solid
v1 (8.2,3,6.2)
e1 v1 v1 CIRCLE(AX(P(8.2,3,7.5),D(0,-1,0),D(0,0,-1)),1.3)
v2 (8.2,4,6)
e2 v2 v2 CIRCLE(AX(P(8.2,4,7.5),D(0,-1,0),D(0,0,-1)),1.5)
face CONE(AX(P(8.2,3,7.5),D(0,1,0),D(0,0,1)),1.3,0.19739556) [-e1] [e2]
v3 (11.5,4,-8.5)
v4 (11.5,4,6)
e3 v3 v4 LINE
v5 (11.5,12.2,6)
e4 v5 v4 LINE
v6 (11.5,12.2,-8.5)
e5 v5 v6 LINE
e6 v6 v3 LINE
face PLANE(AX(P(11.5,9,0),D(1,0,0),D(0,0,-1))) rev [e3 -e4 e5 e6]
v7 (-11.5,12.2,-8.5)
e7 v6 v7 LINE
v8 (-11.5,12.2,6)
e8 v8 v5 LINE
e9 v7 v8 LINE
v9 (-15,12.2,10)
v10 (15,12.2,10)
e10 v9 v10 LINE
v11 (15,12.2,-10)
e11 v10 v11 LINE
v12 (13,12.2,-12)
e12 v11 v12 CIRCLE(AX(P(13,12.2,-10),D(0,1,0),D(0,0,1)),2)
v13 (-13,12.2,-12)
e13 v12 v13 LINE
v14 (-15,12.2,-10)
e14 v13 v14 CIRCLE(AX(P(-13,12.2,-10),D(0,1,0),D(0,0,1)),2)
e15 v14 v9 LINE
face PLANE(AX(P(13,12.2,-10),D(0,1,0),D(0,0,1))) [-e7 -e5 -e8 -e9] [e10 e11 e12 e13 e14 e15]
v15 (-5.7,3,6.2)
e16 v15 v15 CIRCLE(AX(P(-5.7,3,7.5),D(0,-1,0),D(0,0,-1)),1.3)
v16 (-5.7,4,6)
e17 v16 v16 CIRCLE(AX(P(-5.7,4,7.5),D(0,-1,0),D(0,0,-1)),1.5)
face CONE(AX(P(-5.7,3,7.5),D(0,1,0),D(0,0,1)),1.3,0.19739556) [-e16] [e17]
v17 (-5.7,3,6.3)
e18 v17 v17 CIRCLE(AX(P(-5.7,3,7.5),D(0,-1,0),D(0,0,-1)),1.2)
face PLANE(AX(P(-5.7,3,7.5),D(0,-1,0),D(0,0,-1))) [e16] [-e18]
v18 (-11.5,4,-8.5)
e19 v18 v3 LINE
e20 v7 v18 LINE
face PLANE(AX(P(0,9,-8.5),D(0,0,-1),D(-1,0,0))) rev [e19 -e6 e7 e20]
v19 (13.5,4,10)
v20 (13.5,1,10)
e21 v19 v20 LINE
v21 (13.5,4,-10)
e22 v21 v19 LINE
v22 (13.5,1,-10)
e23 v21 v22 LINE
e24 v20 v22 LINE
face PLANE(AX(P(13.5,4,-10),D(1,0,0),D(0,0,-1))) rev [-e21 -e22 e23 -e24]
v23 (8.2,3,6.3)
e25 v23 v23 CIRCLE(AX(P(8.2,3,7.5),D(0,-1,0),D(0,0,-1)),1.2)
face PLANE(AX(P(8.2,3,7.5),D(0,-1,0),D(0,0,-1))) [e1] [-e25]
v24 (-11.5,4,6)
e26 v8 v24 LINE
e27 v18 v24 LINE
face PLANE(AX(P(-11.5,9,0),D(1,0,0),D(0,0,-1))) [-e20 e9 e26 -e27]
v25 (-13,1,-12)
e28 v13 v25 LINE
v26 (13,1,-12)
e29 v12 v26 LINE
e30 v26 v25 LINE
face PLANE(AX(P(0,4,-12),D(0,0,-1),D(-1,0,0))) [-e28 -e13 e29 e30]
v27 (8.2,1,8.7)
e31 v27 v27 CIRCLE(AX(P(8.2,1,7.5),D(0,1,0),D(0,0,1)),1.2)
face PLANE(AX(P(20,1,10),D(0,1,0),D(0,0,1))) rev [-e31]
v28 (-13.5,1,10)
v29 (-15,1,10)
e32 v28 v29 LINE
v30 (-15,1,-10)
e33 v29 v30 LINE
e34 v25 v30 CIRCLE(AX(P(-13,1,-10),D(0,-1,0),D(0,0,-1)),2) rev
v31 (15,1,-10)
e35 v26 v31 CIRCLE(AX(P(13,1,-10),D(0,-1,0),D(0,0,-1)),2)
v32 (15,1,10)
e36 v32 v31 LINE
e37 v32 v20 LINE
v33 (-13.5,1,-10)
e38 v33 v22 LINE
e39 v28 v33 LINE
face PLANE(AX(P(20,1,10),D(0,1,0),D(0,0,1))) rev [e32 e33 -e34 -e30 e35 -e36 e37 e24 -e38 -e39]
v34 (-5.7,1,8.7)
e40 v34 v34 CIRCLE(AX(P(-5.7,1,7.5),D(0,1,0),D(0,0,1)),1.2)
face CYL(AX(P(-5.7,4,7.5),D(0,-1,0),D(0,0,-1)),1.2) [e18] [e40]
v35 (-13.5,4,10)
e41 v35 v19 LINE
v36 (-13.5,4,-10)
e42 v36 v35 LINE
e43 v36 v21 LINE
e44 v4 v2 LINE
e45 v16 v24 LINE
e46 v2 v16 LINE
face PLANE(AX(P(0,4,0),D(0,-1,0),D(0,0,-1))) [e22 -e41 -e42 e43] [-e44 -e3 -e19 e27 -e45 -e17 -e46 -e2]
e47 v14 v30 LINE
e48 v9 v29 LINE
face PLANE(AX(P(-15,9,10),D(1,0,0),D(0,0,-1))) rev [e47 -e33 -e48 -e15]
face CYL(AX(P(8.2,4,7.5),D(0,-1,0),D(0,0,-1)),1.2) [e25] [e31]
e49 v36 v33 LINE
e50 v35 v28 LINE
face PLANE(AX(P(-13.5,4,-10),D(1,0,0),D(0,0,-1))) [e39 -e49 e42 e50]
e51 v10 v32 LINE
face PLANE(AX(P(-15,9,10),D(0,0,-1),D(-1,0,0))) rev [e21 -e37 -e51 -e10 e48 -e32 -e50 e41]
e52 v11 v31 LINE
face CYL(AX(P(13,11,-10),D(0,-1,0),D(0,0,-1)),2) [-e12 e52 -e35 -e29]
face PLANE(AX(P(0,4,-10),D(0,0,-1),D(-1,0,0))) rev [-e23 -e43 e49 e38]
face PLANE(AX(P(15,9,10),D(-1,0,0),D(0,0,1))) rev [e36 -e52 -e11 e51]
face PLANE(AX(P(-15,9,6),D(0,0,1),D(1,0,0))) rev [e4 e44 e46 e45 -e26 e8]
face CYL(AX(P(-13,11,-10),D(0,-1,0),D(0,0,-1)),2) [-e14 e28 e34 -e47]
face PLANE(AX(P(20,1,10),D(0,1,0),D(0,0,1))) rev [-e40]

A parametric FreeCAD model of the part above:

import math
import FreeCAD as App
import Part
import Sketcher

V = App.Vector

doc = App.newDocument("Part")
params = doc.addObject("Spreadsheet::Sheet", "Params")
for row, (alias, value) in enumerate([
    ("sketch1_diameter", "2.4 mm"),
    ("pad1_length", "4 mm"),
    ("sketch2_width", "26 mm"),
    ("sketch2_width2", "2 mm"),
    ("sketch2_height", "20 mm"),
    ("sketch2_height2", "22 mm"),
    ("pad2_length", "4 mm"),
    ("sketch3_width", "30 mm"),
    ("sketch3_height", "4 mm"),
    ("pad3_length", "5 mm"),
    ("sketch4_width", "23 mm"),
    ("sketch4_width2", "30 mm"),
    ("sketch4_height", "18 mm"),
    ("sketch4_height2", "14.5 mm"),
    ("pad4_length", "5 mm"),
    ("sketch5_width", "1 mm"),
    ("sketch5_height", "22 mm"),
    ("pocket1_length", "35 mm"),
    ("sketch6_radius", "2 mm"),
    ("pocket2_length", "10 mm"),
    ("sketch7_radius", "2 mm"),
    ("sketch7_width", "26 mm"),
    ("sketch7_width2", "23 mm"),
    ("sketch7_height", "20 mm"),
    ("sketch7_height2", "14.5 mm"),
    ("pad5_length", "3.2 mm"),
    ("sketch8_height", "20 mm"),
    ("sketch8_width", "0.5 mm"),
    ("pocket3_length", "4 mm"),
    ("sketch9_diameter", "3 mm"),
    ("sketch10_diameter", "2.6 mm"),
    ("sketch11_diameter", "3 mm"),
    ("sketch12_diameter", "2.6 mm"),
], start=1):
    params.set(f"A{row}", alias)
    params.set(f"B{row}", "=" + value)
    params.setAlias(f"B{row}", alias)

body = doc.addObject("PartDesign::Body", "Body")
body.AllowCompound = True

sketch1 = body.newObject("Sketcher::SketchObject", "Sketch")
sketch1.AttachmentSupport = (doc.getObject("XZ_Plane"), [""])
sketch1.MapMode = "FlatFace"
sketch1.addGeometry([
    Part.Circle(V(-5.7, 7.5, 0), V(0, 0, 1), 1.2),
    Part.Circle(V(8.2, 7.5, 0), V(0, 0, 1), 1.2),
], False)
sketch1.addConstraint([
    Sketcher.Constraint("Equal", 0, 1),
    Sketcher.Constraint("Horizontal", 0, 3, 1, 3),
    Sketcher.Constraint("Diameter", 0, 2.4),
    Sketcher.Constraint("DistanceX", 0, 3, -1, 1, 5.7),
    Sketcher.Constraint("DistanceY", -1, 1, 0, 3, 7.5),
    Sketcher.Constraint("DistanceX", -1, 1, 1, 3, 8.2),
])
sketch1.setExpression("Constraints[2]", "Params.sketch1_diameter")
pad1 = body.newObject("PartDesign::Pad", "Pad")
pad1.Profile = sketch1
pad1.setExpression("Length", "Params.pad1_length")
pad1.Reversed = True
body2 = doc.addObject("PartDesign::Body", "Body001")

sketch2 = body2.newObject("Sketcher::SketchObject", "Sketch001")
sketch2.AttachmentSupport = (doc.getObject("XZ_Plane001"), [""])
sketch2.MapMode = "FlatFace"
sketch2.addGeometry([
    Part.LineSegment(V(-13, 10, 0), V(-13, -10, 0)),
    Part.LineSegment(V(-13, -10, 0), V(13, -10, 0)),
    Part.LineSegment(V(13, -10, 0), V(13, 10, 0)),
    Part.LineSegment(V(13, 10, 0), V(15, 10, 0)),
    Part.LineSegment(V(15, 10, 0), V(15, -12, 0)),
    Part.LineSegment(V(15, -12, 0), V(-15, -12, 0)),
    Part.LineSegment(V(-15, -12, 0), V(-15, 10, 0)),
    Part.LineSegment(V(-15, 10, 0), V(-13, 10, 0)),
], False)
sketch2.addConstraint([
    Sketcher.Constraint("Coincident", 0, 2, 1, 1),
    Sketcher.Constraint("Coincident", 1, 2, 2, 1),
    Sketcher.Constraint("Coincident", 2, 2, 3, 1),
    Sketcher.Constraint("Coincident", 3, 2, 4, 1),
    Sketcher.Constraint("Coincident", 4, 2, 5, 1),
    Sketcher.Constraint("Coincident", 5, 2, 6, 1),
    Sketcher.Constraint("Coincident", 6, 2, 7, 1),
    Sketcher.Constraint("Coincident", 7, 2, 0, 1),
    Sketcher.Constraint("Vertical", 0),
    Sketcher.Constraint("Horizontal", 1),
    Sketcher.Constraint("Vertical", 2),
    Sketcher.Constraint("Horizontal", 3),
    Sketcher.Constraint("Vertical", 4),
    Sketcher.Constraint("Horizontal", 5),
    Sketcher.Constraint("Vertical", 6),
    Sketcher.Constraint("Horizontal", 7),
    Sketcher.Constraint("Symmetric", 0, 2, 2, 2, -1, 1),
    Sketcher.Constraint("Symmetric", 3, 2, 6, 2, -2),
    Sketcher.Constraint("DistanceX", 1, 1, 1, 2, 26.0),
    Sketcher.Constraint("DistanceX", 3, 1, 3, 2, 2.0),
    Sketcher.Constraint("DistanceY", 0, 2, 0, 1, 20.0),
    Sketcher.Constraint("DistanceY", 4, 2, 4, 1, 22.0),
])
sketch2.setExpression("Constraints[18]", "Params.sketch2_width")
sketch2.setExpression("Constraints[19]", "Params.sketch2_width2")
sketch2.setExpression("Constraints[20]", "Params.sketch2_height")
sketch2.setExpression("Constraints[21]", "Params.sketch2_height2")
pad2 = body2.newObject("PartDesign::Pad", "Pad001")
pad2.Profile = sketch2
pad2.setExpression("Length", "Params.pad2_length")
pad2.Reversed = True
body.AllowCompound = True
doc.recompute()

boolean = body.newObject("PartDesign::Boolean", "Boolean")
boolean.Type = "Fuse"
boolean.addObjects([body2])

sketch3 = body.newObject("Sketcher::SketchObject", "Sketch002")
sketch3.AttachmentSupport = (doc.getObject("XZ_Plane"), [""])
sketch3.MapMode = "FlatFace"
sketch3.AttachmentOffset = App.Placement(V(0, 0, -4), App.Rotation())
sketch3.addGeometry([
    Part.LineSegment(V(-15, 6, 0), V(-15, 10, 0)),
    Part.LineSegment(V(-15, 10, 0), V(15, 10, 0)),
    Part.LineSegment(V(15, 10, 0), V(15, 6, 0)),
    Part.LineSegment(V(15, 6, 0), V(-15, 6, 0)),
], False)
sketch3.addConstraint([
    Sketcher.Constraint("Coincident", 0, 2, 1, 1),
    Sketcher.Constraint("Coincident", 1, 2, 2, 1),
    Sketcher.Constraint("Coincident", 2, 2, 3, 1),
    Sketcher.Constraint("Coincident", 3, 2, 0, 1),
    Sketcher.Constraint("Vertical", 0),
    Sketcher.Constraint("Horizontal", 1),
    Sketcher.Constraint("Vertical", 2),
    Sketcher.Constraint("Horizontal", 3),
    Sketcher.Constraint("DistanceX", 1, 1, 1, 2, 30.0),
    Sketcher.Constraint("DistanceY", 0, 1, 0, 2, 4.0),
    Sketcher.Constraint("DistanceX", 0, 2, -1, 1, 15.0),
    Sketcher.Constraint("DistanceY", -1, 1, 0, 2, 10.0),
])
sketch3.setExpression("Constraints[8]", "Params.sketch3_width")
sketch3.setExpression("Constraints[9]", "Params.sketch3_height")
pad3 = body.newObject("PartDesign::Pad", "Pad002")
pad3.Profile = sketch3
pad3.setExpression("Length", "Params.pad3_length")
pad3.Reversed = True

sketch4 = body.newObject("Sketcher::SketchObject", "Sketch003")
sketch4.AttachmentSupport = (doc.getObject("XZ_Plane"), [""])
sketch4.MapMode = "FlatFace"
sketch4.AttachmentOffset = App.Placement(V(0, 0, -4), App.Rotation())
sketch4.addGeometry([
    Part.LineSegment(V(-11.5, -8.5, 0), V(11.5, -8.5, 0)),
    Part.LineSegment(V(11.5, -8.5, 0), V(11.5, 6, 0)),
    Part.LineSegment(V(11.5, 6, 0), V(15, 6, 0)),
    Part.LineSegment(V(15, 6, 0), V(15, -12, 0)),
    Part.LineSegment(V(15, -12, 0), V(-15, -12, 0)),
    Part.LineSegment(V(-15, -12, 0), V(-15, 6, 0)),
    Part.LineSegment(V(-15, 6, 0), V(-11.5, 6, 0)),
    Part.LineSegment(V(-11.5, 6, 0), V(-11.5, -8.5, 0)),
], False)
sketch4.addConstraint([
    Sketcher.Constraint("Coincident", 0, 2, 1, 1),
    Sketcher.Constraint("Coincident", 1, 2, 2, 1),
    Sketcher.Constraint("Coincident", 2, 2, 3, 1),
    Sketcher.Constraint("Coincident", 3, 2, 4, 1),
    Sketcher.Constraint("Coincident", 4, 2, 5, 1),
    Sketcher.Constraint("Coincident", 5, 2, 6, 1),
    Sketcher.Constraint("Coincident", 6, 2, 7, 1),
    Sketcher.Constraint("Coincident", 7, 2, 0, 1),
    Sketcher.Constraint("Horizontal", 0),
    Sketcher.Constraint("Vertical", 1),
    Sketcher.Constraint("Horizontal", 2),
    Sketcher.Constraint("Vertical", 3),
    Sketcher.Constraint("Horizontal", 4),
    Sketcher.Constraint("Vertical", 5),
    Sketcher.Constraint("Horizontal", 6),
    Sketcher.Constraint("Vertical", 7),
    Sketcher.Constraint("Symmetric", 2, 2, 5, 2, -2),
    Sketcher.Constraint("Equal", 2, 6),
    Sketcher.Constraint("DistanceX", 0, 1, 0, 2, 23.0),
    Sketcher.Constraint("DistanceX", 4, 2, 4, 1, 30.0),
    Sketcher.Constraint("DistanceY", 3, 2, 3, 1, 18.0),
    Sketcher.Constraint("DistanceY", 1, 1, 1, 2, 14.5),
    Sketcher.Constraint("DistanceY", -1, 1, 1, 2, 6.0),
])
sketch4.setExpression("Constraints[18]", "Params.sketch4_width")
sketch4.setExpression("Constraints[19]", "Params.sketch4_width2")
sketch4.setExpression("Constraints[20]", "Params.sketch4_height")
sketch4.setExpression("Constraints[21]", "Params.sketch4_height2")
pad4 = body.newObject("PartDesign::Pad", "Pad003")
pad4.Profile = sketch4
pad4.setExpression("Length", "Params.pad4_length")
pad4.Reversed = True

sketch5 = body.newObject("Sketcher::SketchObject", "Sketch004")
sketch5.AttachmentSupport = (doc.getObject("YZ_Plane"), [""])
sketch5.MapMode = "FlatFace"
sketch5.AttachmentOffset = App.Placement(V(0, 0, -15), App.Rotation())
sketch5.addGeometry([
    Part.LineSegment(V(1, -12, 0), V(0, -12, 0)),
    Part.LineSegment(V(0, -12, 0), V(0, 10, 0)),
    Part.LineSegment(V(0, 10, 0), V(1, 10, 0)),
    Part.LineSegment(V(1, 10, 0), V(1, -12, 0)),
], False)
sketch5.addConstraint([
    Sketcher.Constraint("Coincident", 0, 2, 1, 1),
    Sketcher.Constraint("Coincident", 1, 2, 2, 1),
    Sketcher.Constraint("Coincident", 2, 2, 3, 1),
    Sketcher.Constraint("Coincident", 3, 2, 0, 1),
    Sketcher.Constraint("Horizontal", 0),
    Sketcher.Constraint("Vertical", 1),
    Sketcher.Constraint("Horizontal", 2),
    Sketcher.Constraint("Vertical", 3),
    Sketcher.Constraint("PointOnObject", 0, 2, -2),
    Sketcher.Constraint("DistanceX", 0, 2, 0, 1, 1.0),
    Sketcher.Constraint("DistanceY", 1, 1, 1, 2, 22.0),
    Sketcher.Constraint("DistanceY", 0, 2, -1, 1, 12.0),
])
sketch5.setExpression("Constraints[9]", "Params.sketch5_width")
sketch5.setExpression("Constraints[10]", "Params.sketch5_height")
pocket1 = body.newObject("PartDesign::Pocket", "Pocket")
pocket1.Profile = sketch5
pocket1.setExpression("Length", "Params.pocket1_length")
pocket1.Reversed = True

sketch6 = body.newObject("Sketcher::SketchObject", "Sketch005")
sketch6.AttachmentSupport = (doc.getObject("XZ_Plane"), [""])
sketch6.MapMode = "FlatFace"
sketch6.AttachmentOffset = App.Placement(V(0, 0, -1), App.Rotation())
sketch6.addGeometry([
    Part.LineSegment(V(-15, -12, 0), V(-13, -12, 0)),
    Part.ArcOfCircle(Part.Circle(V(-13, -10, 0), V(0, 0, 1), 2), math.radians(-180), math.radians(-90)),
    Part.LineSegment(V(-15, -10, 0), V(-15, -12, 0)),
    Part.ArcOfCircle(Part.Circle(V(13, -10, 0), V(0, 0, 1), 2), math.radians(-90), math.radians(0)),
    Part.LineSegment(V(13, -12, 0), V(15, -12, 0)),
    Part.LineSegment(V(15, -12, 0), V(15, -10, 0)),
], False)
sketch6.addConstraint([
    Sketcher.Constraint("Tangent", 0, 2, 1, 2),
    Sketcher.Constraint("Tangent", 1, 1, 2, 1),
    Sketcher.Constraint("Coincident", 2, 2, 0, 1),
    Sketcher.Constraint("Tangent", 3, 1, 4, 1),
    Sketcher.Constraint("Coincident", 4, 2, 5, 1),
    Sketcher.Constraint("Tangent", 5, 2, 3, 2),
    Sketcher.Constraint("Horizontal", 0),
    Sketcher.Constraint("Vertical", 2),
    Sketcher.Constraint("Horizontal", 4),
    Sketcher.Constraint("Vertical", 5),
    Sketcher.Constraint("Equal", 1, 3),
    Sketcher.Constraint("Symmetric", 1, 3, 3, 3, -2),
    Sketcher.Constraint("Radius", 1, 2.0),
    Sketcher.Constraint("DistanceX", 1, 3, -1, 1, 13.0),
    Sketcher.Constraint("DistanceY", 1, 3, -1, 1, 10.0),
])
sketch6.setExpression("Constraints[12]", "Params.sketch6_radius")
pocket2 = body.newObject("PartDesign::Pocket", "Pocket001")
pocket2.Profile = sketch6
pocket2.setExpression("Length", "Params.pocket2_length")

sketch7 = body.newObject("Sketcher::SketchObject", "Sketch006")
sketch7.AttachmentSupport = (doc.getObject("XZ_Plane"), [""])
sketch7.MapMode = "FlatFace"
sketch7.AttachmentOffset = App.Placement(V(0, 0, -9), App.Rotation())
sketch7.addGeometry([
    Part.LineSegment(V(13, -12, 0), V(-13, -12, 0)),
    Part.ArcOfCircle(Part.Circle(V(-13, -10, 0), V(0, 0, 1), 2), math.radians(-180), math.radians(-90)),
    Part.LineSegment(V(-15, -10, 0), V(-15, 10, 0)),
    Part.LineSegment(V(-15, 10, 0), V(15, 10, 0)),
    Part.LineSegment(V(15, 10, 0), V(15, -10, 0)),
    Part.ArcOfCircle(Part.Circle(V(13, -10, 0), V(0, 0, 1), 2), math.radians(-90), math.radians(0)),
    Part.LineSegment(V(11.5, 6, 0), V(-11.5, 6, 0)),
    Part.LineSegment(V(-11.5, 6, 0), V(-11.5, -8.5, 0)),
    Part.LineSegment(V(-11.5, -8.5, 0), V(11.5, -8.5, 0)),
    Part.LineSegment(V(11.5, -8.5, 0), V(11.5, 6, 0)),
], False)
sketch7.addConstraint([
    Sketcher.Constraint("Tangent", 0, 2, 1, 2),
    Sketcher.Constraint("Tangent", 1, 1, 2, 1),
    Sketcher.Constraint("Coincident", 2, 2, 3, 1),
    Sketcher.Constraint("Coincident", 3, 2, 4, 1),
    Sketcher.Constraint("Tangent", 4, 2, 5, 2),
    Sketcher.Constraint("Tangent", 5, 1, 0, 1),
    Sketcher.Constraint("Coincident", 6, 2, 7, 1),
    Sketcher.Constraint("Coincident", 7, 2, 8, 1),
    Sketcher.Constraint("Coincident", 8, 2, 9, 1),
    Sketcher.Constraint("Coincident", 9, 2, 6, 1),
    Sketcher.Constraint("Horizontal", 0),
    Sketcher.Constraint("Vertical", 2),
    Sketcher.Constraint("Horizontal", 3),
    Sketcher.Constraint("Vertical", 4),
    Sketcher.Constraint("Horizontal", 6),
    Sketcher.Constraint("Vertical", 7),
    Sketcher.Constraint("Horizontal", 8),
    Sketcher.Constraint("Vertical", 9),
    Sketcher.Constraint("Equal", 1, 5),
    Sketcher.Constraint("Symmetric", 1, 1, 3, 2, -1, 1),
    Sketcher.Constraint("Radius", 1, 2.0),
    Sketcher.Constraint("DistanceX", 0, 2, 0, 1, 26.0),
    Sketcher.Constraint("DistanceX", 6, 2, 6, 1, 23.0),
    Sketcher.Constraint("DistanceY", 2, 1, 2, 2, 20.0),
    Sketcher.Constraint("DistanceY", 7, 2, 7, 1, 14.5),
    Sketcher.Constraint("DistanceY", -1, 1, 6, 2, 6.0),
    Sketcher.Constraint("DistanceX", 6, 2, -1, 1, 11.5),
])
sketch7.setExpression("Constraints[20]", "Params.sketch7_radius")
sketch7.setExpression("Constraints[21]", "Params.sketch7_width")
sketch7.setExpression("Constraints[22]", "Params.sketch7_width2")
sketch7.setExpression("Constraints[23]", "Params.sketch7_height")
sketch7.setExpression("Constraints[24]", "Params.sketch7_height2")
pad5 = body.newObject("PartDesign::Pad", "Pad004")
pad5.Profile = sketch7
pad5.setExpression("Length", "Params.pad5_length")
pad5.Reversed = True

sketch8 = body.newObject("Sketcher::SketchObject", "Sketch007")
sketch8.AttachmentSupport = (doc.getObject("XZ_Plane"), [""])
sketch8.MapMode = "FlatFace"
sketch8.addGeometry([
    Part.LineSegment(V(-13.5, 10, 0), V(-13.5, -10, 0)),
    Part.LineSegment(V(-13.5, -10, 0), V(-13, -10, 0)),
    Part.LineSegment(V(-13, -10, 0), V(-13, 10, 0)),
    Part.LineSegment(V(-13, 10, 0), V(-13.5, 10, 0)),
    Part.LineSegment(V(13, 10, 0), V(13, -10, 0)),
    Part.LineSegment(V(13, -10, 0), V(13.5, -10, 0)),
    Part.LineSegment(V(13.5, -10, 0), V(13.5, 10, 0)),
    Part.LineSegment(V(13.5, 10, 0), V(13, 10, 0)),
], False)
sketch8.addConstraint([
    Sketcher.Constraint("Coincident", 0, 2, 1, 1),
    Sketcher.Constraint("Coincident", 1, 2, 2, 1),
    Sketcher.Constraint("Coincident", 2, 2, 3, 1),
    Sketcher.Constraint("Coincident", 3, 2, 0, 1),
    Sketcher.Constraint("Coincident", 4, 2, 5, 1),
    Sketcher.Constraint("Coincident", 5, 2, 6, 1),
    Sketcher.Constraint("Coincident", 6, 2, 7, 1),
    Sketcher.Constraint("Coincident", 7, 2, 4, 1),
    Sketcher.Constraint("Vertical", 0),
    Sketcher.Constraint("Horizontal", 1),
    Sketcher.Constraint("Vertical", 2),
    Sketcher.Constraint("Horizontal", 3),
    Sketcher.Constraint("Vertical", 4),
    Sketcher.Constraint("Horizontal", 5),
    Sketcher.Constraint("Vertical", 6),
    Sketcher.Constraint("Horizontal", 7),
    Sketcher.Constraint("Symmetric", 2, 2, 4, 2, -1, 1),
    Sketcher.Constraint("Symmetric", 0, 2, 6, 2, -1, 1),
    Sketcher.Constraint("Horizontal", 1, 2, 4, 2),
    Sketcher.Constraint("DistanceY", 0, 2, 0, 1, 20.0),
    Sketcher.Constraint("DistanceX", 1, 1, 1, 2, 0.5),
    Sketcher.Constraint("DistanceX", 1, 2, -1, 1, 13.0),
])
sketch8.setExpression("Constraints[19]", "Params.sketch8_height")
sketch8.setExpression("Constraints[20]", "Params.sketch8_width")
pocket3 = body.newObject("PartDesign::Pocket", "Pocket002")
pocket3.Profile = sketch8
pocket3.setExpression("Length", "Params.pocket3_length")

sketch9 = body.newObject("Sketcher::SketchObject", "Sketch008")
sketch9.AttachmentSupport = (doc.getObject("XZ_Plane"), [""])
sketch9.MapMode = "FlatFace"
sketch9.AttachmentOffset = App.Placement(V(0, 0, -4), App.Rotation())
sketch9.addGeometry(Part.Circle(V(-5.7, 7.5, 0), V(0, 0, 1), 1.5), False)
sketch9.addConstraint([
    Sketcher.Constraint("Diameter", 0, 3.0),
    Sketcher.Constraint("DistanceX", 0, 3, -1, 1, 5.7),
    Sketcher.Constraint("DistanceY", -1, 1, 0, 3, 7.5),
])
sketch9.setExpression("Constraints[0]", "Params.sketch9_diameter")

sketch10 = body.newObject("Sketcher::SketchObject", "Sketch009")
sketch10.AttachmentSupport = (doc.getObject("XZ_Plane"), [""])
sketch10.MapMode = "FlatFace"
sketch10.AttachmentOffset = App.Placement(V(0, 0, -3), App.Rotation())
sketch10.addGeometry(Part.Circle(V(-5.7, 7.5, 0), V(0, 0, 1), 1.3), False)
sketch10.addConstraint([
    Sketcher.Constraint("Diameter", 0, 2.6),
    Sketcher.Constraint("DistanceX", 0, 3, -1, 1, 5.7),
    Sketcher.Constraint("DistanceY", -1, 1, 0, 3, 7.5),
])
sketch10.setExpression("Constraints[0]", "Params.sketch10_diameter")

additiveloft = body.newObject("PartDesign::AdditiveLoft", "AdditiveLoft")
additiveloft.Profile = sketch9
additiveloft.Sections = [sketch10]

sketch11 = body.newObject("Sketcher::SketchObject", "Sketch010")
sketch11.AttachmentSupport = (doc.getObject("XZ_Plane"), [""])
sketch11.MapMode = "FlatFace"
sketch11.AttachmentOffset = App.Placement(V(0, 0, -4), App.Rotation())
sketch11.addGeometry(Part.Circle(V(8.2, 7.5, 0), V(0, 0, 1), 1.5), False)
sketch11.addConstraint([
    Sketcher.Constraint("Diameter", 0, 3.0),
    Sketcher.Constraint("DistanceX", -1, 1, 0, 3, 8.2),
    Sketcher.Constraint("DistanceY", -1, 1, 0, 3, 7.5),
])
sketch11.setExpression("Constraints[0]", "Params.sketch11_diameter")

sketch12 = body.newObject("Sketcher::SketchObject", "Sketch011")
sketch12.AttachmentSupport = (doc.getObject("XZ_Plane"), [""])
sketch12.MapMode = "FlatFace"
sketch12.AttachmentOffset = App.Placement(V(0, 0, -3), App.Rotation())
sketch12.addGeometry(Part.Circle(V(8.2, 7.5, 0), V(0, 0, 1), 1.3), False)
sketch12.addConstraint([
    Sketcher.Constraint("Diameter", 0, 2.6),
    Sketcher.Constraint("DistanceX", -1, 1, 0, 3, 8.2),
    Sketcher.Constraint("DistanceY", -1, 1, 0, 3, 7.5),
])
sketch12.setExpression("Constraints[0]", "Params.sketch12_diameter")

additiveloft2 = body.newObject("PartDesign::AdditiveLoft", "AdditiveLoft001")
additiveloft2.Profile = sketch11
additiveloft2.Sections = [sketch12]

doc.recompute()
